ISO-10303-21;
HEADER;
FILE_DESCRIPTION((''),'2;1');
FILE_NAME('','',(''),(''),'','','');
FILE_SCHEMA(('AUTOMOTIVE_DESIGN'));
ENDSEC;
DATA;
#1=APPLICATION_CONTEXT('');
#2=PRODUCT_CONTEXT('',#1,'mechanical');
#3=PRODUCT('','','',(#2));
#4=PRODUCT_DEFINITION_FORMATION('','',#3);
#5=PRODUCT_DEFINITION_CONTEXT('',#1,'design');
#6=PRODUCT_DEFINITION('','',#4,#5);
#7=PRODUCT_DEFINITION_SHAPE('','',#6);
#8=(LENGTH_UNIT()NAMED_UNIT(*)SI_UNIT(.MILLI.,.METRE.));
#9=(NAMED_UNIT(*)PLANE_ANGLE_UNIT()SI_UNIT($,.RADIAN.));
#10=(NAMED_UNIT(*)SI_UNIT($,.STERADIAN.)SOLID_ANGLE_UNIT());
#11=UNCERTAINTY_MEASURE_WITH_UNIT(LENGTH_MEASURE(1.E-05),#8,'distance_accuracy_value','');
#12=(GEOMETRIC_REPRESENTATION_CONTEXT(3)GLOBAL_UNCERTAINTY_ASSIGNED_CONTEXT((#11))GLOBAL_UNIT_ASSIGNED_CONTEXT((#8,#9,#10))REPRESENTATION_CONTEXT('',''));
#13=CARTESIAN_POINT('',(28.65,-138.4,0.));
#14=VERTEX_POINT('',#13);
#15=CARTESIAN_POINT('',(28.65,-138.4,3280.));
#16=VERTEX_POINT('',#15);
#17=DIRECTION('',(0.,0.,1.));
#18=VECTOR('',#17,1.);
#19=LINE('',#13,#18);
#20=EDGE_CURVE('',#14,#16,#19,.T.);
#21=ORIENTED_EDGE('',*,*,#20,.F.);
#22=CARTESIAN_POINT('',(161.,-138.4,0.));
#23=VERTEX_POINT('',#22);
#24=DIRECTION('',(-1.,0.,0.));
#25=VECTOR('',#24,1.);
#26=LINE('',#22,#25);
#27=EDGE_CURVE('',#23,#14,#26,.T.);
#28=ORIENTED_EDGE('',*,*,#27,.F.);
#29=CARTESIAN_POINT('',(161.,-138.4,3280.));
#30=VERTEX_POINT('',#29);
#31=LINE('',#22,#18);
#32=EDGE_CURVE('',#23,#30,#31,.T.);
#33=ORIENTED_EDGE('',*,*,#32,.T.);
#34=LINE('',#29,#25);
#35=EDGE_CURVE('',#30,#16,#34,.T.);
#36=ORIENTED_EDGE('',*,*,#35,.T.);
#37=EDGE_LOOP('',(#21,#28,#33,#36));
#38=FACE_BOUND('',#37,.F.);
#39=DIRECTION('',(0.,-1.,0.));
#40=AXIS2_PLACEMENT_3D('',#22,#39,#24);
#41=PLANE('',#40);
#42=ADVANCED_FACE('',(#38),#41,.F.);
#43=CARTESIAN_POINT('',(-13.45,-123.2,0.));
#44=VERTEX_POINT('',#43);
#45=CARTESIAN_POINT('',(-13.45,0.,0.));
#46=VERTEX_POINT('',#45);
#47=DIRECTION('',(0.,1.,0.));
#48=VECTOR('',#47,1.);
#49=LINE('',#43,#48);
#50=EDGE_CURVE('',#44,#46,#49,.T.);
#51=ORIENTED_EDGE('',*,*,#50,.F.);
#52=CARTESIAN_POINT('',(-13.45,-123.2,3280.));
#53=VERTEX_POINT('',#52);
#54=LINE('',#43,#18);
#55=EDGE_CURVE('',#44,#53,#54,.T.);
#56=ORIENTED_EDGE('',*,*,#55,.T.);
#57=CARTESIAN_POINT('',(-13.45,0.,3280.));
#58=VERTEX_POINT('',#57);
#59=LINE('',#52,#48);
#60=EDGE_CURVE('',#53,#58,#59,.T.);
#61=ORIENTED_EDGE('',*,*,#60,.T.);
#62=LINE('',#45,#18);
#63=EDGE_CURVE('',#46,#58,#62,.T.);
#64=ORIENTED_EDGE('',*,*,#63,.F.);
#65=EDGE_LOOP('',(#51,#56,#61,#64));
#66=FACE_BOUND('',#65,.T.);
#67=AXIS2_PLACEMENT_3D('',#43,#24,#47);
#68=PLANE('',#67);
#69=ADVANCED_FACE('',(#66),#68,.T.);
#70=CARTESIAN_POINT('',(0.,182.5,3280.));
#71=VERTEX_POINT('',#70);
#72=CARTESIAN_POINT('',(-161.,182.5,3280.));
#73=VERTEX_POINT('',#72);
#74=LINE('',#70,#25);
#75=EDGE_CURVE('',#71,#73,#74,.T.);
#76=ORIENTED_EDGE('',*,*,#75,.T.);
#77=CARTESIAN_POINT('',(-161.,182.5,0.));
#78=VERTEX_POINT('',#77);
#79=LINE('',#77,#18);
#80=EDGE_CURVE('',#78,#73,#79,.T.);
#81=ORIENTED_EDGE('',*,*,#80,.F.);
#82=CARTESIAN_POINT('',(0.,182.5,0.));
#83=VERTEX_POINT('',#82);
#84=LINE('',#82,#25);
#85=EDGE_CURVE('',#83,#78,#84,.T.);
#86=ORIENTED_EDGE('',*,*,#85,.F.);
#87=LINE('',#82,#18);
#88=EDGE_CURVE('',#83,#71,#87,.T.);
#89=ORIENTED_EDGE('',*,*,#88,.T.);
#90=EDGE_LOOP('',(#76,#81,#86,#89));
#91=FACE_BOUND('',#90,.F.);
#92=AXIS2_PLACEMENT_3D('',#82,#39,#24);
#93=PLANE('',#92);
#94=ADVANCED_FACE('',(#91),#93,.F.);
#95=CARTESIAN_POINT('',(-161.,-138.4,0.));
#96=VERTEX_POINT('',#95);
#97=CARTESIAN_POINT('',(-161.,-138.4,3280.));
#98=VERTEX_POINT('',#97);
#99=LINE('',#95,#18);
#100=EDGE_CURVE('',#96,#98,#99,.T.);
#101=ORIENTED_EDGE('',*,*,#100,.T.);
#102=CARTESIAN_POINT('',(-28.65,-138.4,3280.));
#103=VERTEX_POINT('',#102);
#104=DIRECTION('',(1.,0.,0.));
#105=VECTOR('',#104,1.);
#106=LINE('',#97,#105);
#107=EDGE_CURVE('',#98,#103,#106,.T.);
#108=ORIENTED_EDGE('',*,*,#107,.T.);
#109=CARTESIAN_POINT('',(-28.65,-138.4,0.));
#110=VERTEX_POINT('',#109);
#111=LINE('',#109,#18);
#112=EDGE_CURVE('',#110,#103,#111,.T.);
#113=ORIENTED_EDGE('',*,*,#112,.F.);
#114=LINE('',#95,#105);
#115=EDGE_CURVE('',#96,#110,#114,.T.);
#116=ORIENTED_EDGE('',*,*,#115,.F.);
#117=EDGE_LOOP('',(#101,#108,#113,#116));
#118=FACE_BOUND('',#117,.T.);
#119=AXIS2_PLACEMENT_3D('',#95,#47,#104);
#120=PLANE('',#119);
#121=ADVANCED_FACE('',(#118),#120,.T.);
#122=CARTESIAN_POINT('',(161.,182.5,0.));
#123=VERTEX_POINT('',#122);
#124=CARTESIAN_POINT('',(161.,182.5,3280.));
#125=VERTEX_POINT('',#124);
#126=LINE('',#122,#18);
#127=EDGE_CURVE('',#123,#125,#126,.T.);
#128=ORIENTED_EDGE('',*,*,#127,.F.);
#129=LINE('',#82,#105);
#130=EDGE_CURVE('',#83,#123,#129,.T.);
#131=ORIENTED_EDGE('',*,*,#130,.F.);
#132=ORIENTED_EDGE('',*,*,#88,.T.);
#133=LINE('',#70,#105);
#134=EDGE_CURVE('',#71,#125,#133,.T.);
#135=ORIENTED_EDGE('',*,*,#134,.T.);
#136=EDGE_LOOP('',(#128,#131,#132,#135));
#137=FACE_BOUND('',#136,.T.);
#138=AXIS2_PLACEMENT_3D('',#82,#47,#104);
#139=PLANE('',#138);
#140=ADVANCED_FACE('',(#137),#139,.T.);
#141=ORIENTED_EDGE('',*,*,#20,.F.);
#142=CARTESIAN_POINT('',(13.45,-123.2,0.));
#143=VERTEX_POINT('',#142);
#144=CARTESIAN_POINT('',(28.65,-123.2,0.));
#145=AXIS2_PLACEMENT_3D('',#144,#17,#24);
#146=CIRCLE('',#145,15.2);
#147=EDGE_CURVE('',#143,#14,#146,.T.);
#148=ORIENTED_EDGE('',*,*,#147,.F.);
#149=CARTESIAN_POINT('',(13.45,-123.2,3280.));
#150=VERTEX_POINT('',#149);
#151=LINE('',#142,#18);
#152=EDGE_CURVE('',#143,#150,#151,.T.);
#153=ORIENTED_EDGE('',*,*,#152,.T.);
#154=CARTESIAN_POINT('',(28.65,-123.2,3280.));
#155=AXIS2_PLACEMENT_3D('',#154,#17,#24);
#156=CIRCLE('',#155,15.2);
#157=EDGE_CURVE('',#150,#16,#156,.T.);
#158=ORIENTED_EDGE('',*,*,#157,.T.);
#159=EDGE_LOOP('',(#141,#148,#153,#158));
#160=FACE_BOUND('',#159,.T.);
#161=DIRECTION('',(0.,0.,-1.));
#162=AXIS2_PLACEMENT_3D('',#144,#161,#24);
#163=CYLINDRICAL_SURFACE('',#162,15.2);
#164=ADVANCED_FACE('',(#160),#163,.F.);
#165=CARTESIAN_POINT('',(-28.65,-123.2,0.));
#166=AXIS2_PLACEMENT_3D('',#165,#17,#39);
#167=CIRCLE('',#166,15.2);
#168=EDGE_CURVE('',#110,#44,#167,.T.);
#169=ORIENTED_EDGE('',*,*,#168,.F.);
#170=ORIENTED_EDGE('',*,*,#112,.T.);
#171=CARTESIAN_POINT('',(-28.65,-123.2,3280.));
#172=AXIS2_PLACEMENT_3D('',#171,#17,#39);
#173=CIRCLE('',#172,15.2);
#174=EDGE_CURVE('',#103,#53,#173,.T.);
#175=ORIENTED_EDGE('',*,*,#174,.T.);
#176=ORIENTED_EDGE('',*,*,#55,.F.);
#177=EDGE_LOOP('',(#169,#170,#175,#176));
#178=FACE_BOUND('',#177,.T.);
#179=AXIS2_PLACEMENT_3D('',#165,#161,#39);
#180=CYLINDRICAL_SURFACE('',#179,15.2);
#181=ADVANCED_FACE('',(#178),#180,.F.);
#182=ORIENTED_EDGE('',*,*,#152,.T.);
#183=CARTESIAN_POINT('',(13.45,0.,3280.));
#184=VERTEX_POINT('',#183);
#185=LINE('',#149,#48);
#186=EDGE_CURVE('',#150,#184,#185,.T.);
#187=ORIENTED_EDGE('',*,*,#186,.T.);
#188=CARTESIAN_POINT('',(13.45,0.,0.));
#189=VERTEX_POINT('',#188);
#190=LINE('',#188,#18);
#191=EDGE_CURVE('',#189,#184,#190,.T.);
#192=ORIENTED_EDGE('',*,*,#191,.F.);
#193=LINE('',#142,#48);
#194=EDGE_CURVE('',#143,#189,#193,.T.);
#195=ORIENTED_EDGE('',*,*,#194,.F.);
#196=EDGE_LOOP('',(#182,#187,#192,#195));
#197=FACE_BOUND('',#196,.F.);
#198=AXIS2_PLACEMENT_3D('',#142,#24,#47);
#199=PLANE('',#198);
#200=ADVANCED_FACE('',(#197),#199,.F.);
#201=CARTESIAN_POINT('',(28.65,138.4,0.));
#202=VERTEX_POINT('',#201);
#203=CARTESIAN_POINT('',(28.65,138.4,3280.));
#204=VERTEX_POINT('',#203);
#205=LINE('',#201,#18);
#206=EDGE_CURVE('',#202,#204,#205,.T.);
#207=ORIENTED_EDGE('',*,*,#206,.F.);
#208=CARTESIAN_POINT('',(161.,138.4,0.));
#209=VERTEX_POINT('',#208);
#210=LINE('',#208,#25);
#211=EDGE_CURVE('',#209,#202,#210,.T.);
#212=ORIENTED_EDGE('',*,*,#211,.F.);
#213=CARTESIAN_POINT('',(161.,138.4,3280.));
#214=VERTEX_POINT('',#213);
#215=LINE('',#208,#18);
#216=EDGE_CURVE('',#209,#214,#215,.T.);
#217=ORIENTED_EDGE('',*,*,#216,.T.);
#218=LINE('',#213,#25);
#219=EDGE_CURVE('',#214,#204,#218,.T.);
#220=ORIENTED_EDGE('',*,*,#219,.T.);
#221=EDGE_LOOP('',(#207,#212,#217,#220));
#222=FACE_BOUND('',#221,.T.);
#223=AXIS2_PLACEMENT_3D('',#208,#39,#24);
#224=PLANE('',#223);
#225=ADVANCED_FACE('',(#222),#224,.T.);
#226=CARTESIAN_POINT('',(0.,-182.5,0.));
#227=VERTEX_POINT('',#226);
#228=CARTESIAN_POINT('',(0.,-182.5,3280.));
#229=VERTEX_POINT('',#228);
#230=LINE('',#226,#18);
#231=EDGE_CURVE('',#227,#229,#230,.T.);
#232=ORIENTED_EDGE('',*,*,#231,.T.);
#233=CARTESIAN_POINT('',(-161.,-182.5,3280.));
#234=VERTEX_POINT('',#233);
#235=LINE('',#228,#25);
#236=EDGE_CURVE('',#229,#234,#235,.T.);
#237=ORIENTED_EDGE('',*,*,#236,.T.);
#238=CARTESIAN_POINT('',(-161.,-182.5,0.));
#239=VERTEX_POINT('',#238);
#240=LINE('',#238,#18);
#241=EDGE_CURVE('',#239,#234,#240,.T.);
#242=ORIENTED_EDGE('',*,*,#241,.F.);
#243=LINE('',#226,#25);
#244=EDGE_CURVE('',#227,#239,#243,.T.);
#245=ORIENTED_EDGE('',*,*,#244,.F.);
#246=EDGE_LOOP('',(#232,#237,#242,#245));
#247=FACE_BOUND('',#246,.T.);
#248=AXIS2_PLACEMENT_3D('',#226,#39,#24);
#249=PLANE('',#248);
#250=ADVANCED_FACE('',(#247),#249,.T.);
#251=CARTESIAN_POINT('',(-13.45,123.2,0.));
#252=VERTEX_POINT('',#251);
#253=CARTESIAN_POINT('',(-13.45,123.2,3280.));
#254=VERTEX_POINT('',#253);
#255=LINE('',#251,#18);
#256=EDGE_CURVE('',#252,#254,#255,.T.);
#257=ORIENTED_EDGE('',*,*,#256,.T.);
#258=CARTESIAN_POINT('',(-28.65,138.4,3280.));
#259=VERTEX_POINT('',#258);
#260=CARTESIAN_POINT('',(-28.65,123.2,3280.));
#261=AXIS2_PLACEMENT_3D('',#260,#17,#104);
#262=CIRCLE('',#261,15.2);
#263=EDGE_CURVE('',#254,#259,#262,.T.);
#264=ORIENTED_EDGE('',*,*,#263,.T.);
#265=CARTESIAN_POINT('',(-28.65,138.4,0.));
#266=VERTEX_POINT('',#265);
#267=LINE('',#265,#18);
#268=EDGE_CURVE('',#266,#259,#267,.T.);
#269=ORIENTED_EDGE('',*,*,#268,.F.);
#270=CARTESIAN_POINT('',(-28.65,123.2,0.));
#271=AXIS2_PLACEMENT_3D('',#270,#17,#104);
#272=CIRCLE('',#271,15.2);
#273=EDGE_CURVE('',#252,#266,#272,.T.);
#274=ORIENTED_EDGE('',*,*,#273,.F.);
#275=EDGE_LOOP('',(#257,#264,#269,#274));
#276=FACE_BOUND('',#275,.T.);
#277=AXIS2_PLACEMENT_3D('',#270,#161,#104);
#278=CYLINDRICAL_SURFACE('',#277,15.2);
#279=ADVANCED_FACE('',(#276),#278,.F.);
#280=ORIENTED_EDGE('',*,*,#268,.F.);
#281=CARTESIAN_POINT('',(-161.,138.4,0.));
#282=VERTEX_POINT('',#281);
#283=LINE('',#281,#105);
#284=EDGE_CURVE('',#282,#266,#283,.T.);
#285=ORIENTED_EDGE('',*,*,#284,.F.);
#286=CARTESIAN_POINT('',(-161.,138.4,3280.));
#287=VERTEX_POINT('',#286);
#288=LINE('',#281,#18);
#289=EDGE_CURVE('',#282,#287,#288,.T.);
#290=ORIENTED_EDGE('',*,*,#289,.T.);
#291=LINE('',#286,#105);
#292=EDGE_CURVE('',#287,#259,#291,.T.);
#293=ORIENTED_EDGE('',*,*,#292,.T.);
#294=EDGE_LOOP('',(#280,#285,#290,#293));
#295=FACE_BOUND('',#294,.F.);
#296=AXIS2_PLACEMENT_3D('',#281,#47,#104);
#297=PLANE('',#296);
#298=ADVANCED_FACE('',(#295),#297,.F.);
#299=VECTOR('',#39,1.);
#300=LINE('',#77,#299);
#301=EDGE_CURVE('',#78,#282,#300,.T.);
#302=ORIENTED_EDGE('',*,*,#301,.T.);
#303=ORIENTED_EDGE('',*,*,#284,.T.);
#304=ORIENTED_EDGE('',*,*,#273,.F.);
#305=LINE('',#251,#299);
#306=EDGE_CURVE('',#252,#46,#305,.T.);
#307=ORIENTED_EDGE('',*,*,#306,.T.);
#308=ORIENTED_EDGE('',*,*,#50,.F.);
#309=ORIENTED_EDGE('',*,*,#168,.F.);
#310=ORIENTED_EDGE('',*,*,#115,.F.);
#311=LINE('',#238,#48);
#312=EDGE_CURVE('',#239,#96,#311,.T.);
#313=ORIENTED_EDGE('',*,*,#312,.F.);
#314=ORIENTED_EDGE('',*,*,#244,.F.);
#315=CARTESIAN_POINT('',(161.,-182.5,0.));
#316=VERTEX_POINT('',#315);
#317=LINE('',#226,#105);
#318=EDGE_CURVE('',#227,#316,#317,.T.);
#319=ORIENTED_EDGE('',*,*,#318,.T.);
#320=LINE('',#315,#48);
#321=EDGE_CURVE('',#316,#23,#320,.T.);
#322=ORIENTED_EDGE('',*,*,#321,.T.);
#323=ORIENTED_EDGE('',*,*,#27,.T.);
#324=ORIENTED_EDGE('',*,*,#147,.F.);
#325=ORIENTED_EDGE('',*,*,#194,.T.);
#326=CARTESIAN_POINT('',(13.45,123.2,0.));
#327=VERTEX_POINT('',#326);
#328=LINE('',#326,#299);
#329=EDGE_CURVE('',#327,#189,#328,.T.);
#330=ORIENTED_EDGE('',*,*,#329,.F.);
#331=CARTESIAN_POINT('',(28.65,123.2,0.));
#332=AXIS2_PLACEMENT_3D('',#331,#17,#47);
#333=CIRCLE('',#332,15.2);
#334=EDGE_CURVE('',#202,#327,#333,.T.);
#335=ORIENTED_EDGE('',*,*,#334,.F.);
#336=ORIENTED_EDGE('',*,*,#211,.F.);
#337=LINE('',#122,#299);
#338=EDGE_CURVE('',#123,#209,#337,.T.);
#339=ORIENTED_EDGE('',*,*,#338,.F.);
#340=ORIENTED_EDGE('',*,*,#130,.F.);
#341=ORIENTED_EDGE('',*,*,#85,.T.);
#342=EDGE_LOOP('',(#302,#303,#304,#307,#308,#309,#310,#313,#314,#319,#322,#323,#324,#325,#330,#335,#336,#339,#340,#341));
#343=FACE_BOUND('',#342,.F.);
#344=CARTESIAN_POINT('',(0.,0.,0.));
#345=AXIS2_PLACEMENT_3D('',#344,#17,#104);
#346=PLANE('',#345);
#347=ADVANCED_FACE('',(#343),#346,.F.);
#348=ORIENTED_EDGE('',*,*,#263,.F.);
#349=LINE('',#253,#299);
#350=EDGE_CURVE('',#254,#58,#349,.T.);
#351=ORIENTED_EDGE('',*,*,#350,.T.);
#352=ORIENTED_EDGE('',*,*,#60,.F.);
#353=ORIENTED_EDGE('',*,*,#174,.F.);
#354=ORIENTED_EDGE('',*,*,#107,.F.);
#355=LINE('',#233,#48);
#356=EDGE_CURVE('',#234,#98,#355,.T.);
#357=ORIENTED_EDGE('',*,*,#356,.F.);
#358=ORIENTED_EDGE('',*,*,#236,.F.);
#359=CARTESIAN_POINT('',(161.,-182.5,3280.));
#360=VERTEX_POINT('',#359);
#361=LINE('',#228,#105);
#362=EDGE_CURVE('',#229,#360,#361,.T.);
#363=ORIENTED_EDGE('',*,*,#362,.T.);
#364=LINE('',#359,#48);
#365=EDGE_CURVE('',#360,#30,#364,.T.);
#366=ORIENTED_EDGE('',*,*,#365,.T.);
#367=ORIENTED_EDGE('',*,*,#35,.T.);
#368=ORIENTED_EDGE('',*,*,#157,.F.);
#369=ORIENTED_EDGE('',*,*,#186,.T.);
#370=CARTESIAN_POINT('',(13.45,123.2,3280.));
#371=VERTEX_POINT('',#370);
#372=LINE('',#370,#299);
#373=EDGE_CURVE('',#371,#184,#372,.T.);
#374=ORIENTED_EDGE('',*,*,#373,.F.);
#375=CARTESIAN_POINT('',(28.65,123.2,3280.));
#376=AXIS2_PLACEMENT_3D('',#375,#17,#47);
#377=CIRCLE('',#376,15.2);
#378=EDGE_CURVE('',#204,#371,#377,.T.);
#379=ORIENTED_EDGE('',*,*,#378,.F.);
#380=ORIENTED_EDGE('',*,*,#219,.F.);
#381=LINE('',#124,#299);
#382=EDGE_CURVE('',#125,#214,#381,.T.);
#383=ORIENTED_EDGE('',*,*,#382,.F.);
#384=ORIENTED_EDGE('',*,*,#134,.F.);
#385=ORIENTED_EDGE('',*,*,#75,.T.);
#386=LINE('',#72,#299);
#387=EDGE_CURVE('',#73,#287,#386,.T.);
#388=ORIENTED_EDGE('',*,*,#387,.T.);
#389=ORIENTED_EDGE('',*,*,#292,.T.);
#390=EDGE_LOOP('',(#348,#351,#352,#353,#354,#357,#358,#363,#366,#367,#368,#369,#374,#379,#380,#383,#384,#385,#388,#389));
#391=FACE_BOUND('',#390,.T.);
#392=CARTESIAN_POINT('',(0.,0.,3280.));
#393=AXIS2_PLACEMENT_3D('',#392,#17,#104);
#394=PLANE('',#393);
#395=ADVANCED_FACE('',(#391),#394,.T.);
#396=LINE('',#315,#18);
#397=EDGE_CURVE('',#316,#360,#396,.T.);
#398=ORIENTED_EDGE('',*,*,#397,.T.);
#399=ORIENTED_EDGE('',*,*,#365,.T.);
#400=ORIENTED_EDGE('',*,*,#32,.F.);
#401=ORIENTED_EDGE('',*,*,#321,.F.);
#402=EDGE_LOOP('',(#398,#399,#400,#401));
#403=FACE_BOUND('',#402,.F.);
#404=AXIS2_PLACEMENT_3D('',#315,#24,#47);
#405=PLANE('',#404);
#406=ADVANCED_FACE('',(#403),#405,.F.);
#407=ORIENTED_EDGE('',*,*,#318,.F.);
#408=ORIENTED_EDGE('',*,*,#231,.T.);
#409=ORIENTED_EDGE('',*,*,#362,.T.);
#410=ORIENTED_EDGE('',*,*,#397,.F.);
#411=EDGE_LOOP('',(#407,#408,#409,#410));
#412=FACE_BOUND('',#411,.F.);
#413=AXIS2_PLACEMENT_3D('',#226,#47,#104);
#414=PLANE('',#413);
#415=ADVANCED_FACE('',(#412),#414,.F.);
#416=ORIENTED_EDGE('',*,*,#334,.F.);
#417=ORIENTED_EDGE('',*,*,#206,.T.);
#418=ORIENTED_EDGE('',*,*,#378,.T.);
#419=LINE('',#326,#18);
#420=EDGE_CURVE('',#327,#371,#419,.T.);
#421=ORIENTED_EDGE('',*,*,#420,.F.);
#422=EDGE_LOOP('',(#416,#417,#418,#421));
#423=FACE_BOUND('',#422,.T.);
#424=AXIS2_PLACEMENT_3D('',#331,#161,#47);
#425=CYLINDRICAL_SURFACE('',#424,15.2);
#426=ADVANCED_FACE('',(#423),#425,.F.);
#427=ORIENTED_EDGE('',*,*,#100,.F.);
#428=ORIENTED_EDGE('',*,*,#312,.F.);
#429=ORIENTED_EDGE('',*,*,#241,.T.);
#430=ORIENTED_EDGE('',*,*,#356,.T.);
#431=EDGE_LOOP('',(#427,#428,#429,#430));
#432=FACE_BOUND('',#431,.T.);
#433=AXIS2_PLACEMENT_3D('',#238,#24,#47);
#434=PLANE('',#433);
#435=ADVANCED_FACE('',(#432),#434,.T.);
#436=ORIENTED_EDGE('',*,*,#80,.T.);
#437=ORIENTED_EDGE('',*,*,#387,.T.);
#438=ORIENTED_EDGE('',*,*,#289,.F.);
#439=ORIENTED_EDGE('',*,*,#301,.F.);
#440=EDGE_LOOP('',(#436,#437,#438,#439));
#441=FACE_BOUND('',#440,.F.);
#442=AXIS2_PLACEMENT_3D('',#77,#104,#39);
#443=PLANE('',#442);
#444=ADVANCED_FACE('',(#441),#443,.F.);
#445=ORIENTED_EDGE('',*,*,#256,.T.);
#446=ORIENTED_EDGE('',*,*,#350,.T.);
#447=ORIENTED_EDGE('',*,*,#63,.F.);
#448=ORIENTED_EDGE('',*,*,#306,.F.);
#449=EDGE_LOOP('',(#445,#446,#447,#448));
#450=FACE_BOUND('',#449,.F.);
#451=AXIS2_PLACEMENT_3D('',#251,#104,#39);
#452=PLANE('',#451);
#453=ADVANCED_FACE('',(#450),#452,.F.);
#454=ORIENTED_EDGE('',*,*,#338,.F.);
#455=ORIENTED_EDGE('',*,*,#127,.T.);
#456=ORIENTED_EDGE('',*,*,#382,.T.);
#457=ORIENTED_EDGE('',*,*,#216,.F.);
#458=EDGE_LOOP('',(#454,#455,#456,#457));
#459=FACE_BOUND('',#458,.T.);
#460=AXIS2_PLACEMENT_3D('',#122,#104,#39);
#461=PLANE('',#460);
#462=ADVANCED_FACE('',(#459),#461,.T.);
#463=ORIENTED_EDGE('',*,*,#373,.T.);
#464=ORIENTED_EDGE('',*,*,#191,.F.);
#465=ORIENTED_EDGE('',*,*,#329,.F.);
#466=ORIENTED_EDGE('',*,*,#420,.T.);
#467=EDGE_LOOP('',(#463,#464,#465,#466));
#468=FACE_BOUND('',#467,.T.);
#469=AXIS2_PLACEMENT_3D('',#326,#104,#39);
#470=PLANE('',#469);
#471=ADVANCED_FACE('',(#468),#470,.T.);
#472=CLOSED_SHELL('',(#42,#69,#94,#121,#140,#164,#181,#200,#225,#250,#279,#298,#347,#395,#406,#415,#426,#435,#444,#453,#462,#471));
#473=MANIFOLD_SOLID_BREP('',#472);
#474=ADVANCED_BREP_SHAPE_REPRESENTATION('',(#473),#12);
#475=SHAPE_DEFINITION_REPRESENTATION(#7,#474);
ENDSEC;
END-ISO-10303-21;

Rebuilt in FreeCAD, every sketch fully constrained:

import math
import FreeCAD as App
import Part
import Sketcher
from FreeCAD import Vector

doc = App.newDocument("Part")
body = doc.addObject("PartDesign::Body", "Body")

# Sketch on XY plane
sketch1 = body.newObject("Sketcher::SketchObject", "Sketch")
sketch1.AttachmentSupport = (doc.getObject("XY_Plane"), [""])
sketch1.MapMode = "FlatFace"
sketch1.addGeometry(Part.LineSegment(Vector(-161, -138, 0), Vector(-161, -182, 0)), False)
sketch1.addGeometry(Part.LineSegment(Vector(-161, -182, 0), Vector(161, -182, 0)), False)
sketch1.addGeometry(Part.LineSegment(Vector(161, -182, 0), Vector(161, -138, 0)), False)
sketch1.addGeometry(Part.LineSegment(Vector(161, -138, 0), Vector(29, -138, 0)), False)
sketch1.addGeometry(Part.ArcOfCircle(Part.Circle(Vector(29, -123, 0), Vector(0, 0, 1), 15), math.radians(180), math.radians(270)), False)
sketch1.addGeometry(Part.LineSegment(Vector(13, -123, 0), Vector(13, 123, 0)), False)
sketch1.addGeometry(Part.ArcOfCircle(Part.Circle(Vector(29, 123, 0), Vector(0, 0, 1), 15), math.radians(90), math.radians(180)), False)
sketch1.addGeometry(Part.LineSegment(Vector(29, 138, 0), Vector(161, 138, 0)), False)
sketch1.addGeometry(Part.LineSegment(Vector(161, 138, 0), Vector(161, 182, 0)), False)
sketch1.addGeometry(Part.LineSegment(Vector(161, 182, 0), Vector(-161, 182, 0)), False)
sketch1.addGeometry(Part.LineSegment(Vector(-161, 182, 0), Vector(-161, 138, 0)), False)
sketch1.addGeometry(Part.LineSegment(Vector(-161, 138, 0), Vector(-29, 138, 0)), False)
sketch1.addGeometry(Part.ArcOfCircle(Part.Circle(Vector(-29, 123, 0), Vector(0, 0, 1), 15), math.radians(0), math.radians(90)), False)
sketch1.addGeometry(Part.LineSegment(Vector(-13, 123, 0), Vector(-13, -123, 0)), False)
sketch1.addGeometry(Part.ArcOfCircle(Part.Circle(Vector(-29, -123, 0), Vector(0, 0, 1), 15), math.radians(-90), math.radians(0)), False)
sketch1.addGeometry(Part.LineSegment(Vector(-29, -138, 0), Vector(-161, -138, 0)), False)
sketch1.addConstraint(Sketcher.Constraint("Coincident", 0, 2, 1, 1))
sketch1.addConstraint(Sketcher.Constraint("Coincident", 1, 2, 2, 1))
sketch1.addConstraint(Sketcher.Constraint("Coincident", 2, 2, 3, 1))
sketch1.addConstraint(Sketcher.Constraint("Tangent", 3, 2, 4, 2))
sketch1.addConstraint(Sketcher.Constraint("Tangent", 4, 1, 5, 1))
sketch1.addConstraint(Sketcher.Constraint("Tangent", 5, 2, 6, 2))
sketch1.addConstraint(Sketcher.Constraint("Tangent", 6, 1, 7, 1))
sketch1.addConstraint(Sketcher.Constraint("Coincident", 7, 2, 8, 1))
sketch1.addConstraint(Sketcher.Constraint("Coincident", 8, 2, 9, 1))
sketch1.addConstraint(Sketcher.Constraint("Coincident", 9, 2, 10, 1))
sketch1.addConstraint(Sketcher.Constraint("Coincident", 10, 2, 11, 1))
sketch1.addConstraint(Sketcher.Constraint("Tangent", 11, 2, 12, 2))
sketch1.addConstraint(Sketcher.Constraint("Tangent", 12, 1, 13, 1))
sketch1.addConstraint(Sketcher.Constraint("Tangent", 13, 2, 14, 2))
sketch1.addConstraint(Sketcher.Constraint("Tangent", 14, 1, 15, 1))
sketch1.addConstraint(Sketcher.Constraint("Coincident", 15, 2, 0, 1))
sketch1.addConstraint(Sketcher.Constraint("Vertical", 0))
sketch1.addConstraint(Sketcher.Constraint("Horizontal", 1))
sketch1.addConstraint(Sketcher.Constraint("Vertical", 2))
sketch1.addConstraint(Sketcher.Constraint("Horizontal", 3))
sketch1.addConstraint(Sketcher.Constraint("Vertical", 5))
sketch1.addConstraint(Sketcher.Constraint("Horizontal", 7))
sketch1.addConstraint(Sketcher.Constraint("Vertical", 8))
sketch1.addConstraint(Sketcher.Constraint("Horizontal", 9))
sketch1.addConstraint(Sketcher.Constraint("Vertical", 10))
sketch1.addConstraint(Sketcher.Constraint("Horizontal", 11))
sketch1.addConstraint(Sketcher.Constraint("Vertical", 13))
sketch1.addConstraint(Sketcher.Constraint("Horizontal", 15))
sketch1.addConstraint(Sketcher.Constraint("Equal", 4, 6))
sketch1.addConstraint(Sketcher.Constraint("Equal", 6, 12))
sketch1.addConstraint(Sketcher.Constraint("Equal", 12, 14))
sketch1.addConstraint(Sketcher.Constraint("Symmetric", 4, 3, 12, 3, -1, 1))
sketch1.addConstraint(Sketcher.Constraint("Symmetric", 0, 2, 8, 2, -1, 1))
sketch1.addConstraint(Sketcher.Constraint("Symmetric", 7, 2, 10, 2, -2))
sketch1.addConstraint(Sketcher.Constraint("Symmetric", 2, 2, 15, 2, -2))
sketch1.addConstraint(Sketcher.Constraint("Radius", 4, 15.2))
sketch1.addConstraint(Sketcher.Constraint("DistanceY", 0, 2, 0, 1, 44.1))
sketch1.addConstraint(Sketcher.Constraint("DistanceX", 0, 2, -1, 1, 161.0))
sketch1.addConstraint(Sketcher.Constraint("DistanceY", 0, 2, -1, 1, 182.5))
sketch1.addConstraint(Sketcher.Constraint("DistanceX", -1, 1, 4, 1, 13.45))
pad1 = body.newObject("PartDesign::Pad", "Pad")
pad1.Profile = sketch1
pad1.Length = 3280

doc.recompute()
